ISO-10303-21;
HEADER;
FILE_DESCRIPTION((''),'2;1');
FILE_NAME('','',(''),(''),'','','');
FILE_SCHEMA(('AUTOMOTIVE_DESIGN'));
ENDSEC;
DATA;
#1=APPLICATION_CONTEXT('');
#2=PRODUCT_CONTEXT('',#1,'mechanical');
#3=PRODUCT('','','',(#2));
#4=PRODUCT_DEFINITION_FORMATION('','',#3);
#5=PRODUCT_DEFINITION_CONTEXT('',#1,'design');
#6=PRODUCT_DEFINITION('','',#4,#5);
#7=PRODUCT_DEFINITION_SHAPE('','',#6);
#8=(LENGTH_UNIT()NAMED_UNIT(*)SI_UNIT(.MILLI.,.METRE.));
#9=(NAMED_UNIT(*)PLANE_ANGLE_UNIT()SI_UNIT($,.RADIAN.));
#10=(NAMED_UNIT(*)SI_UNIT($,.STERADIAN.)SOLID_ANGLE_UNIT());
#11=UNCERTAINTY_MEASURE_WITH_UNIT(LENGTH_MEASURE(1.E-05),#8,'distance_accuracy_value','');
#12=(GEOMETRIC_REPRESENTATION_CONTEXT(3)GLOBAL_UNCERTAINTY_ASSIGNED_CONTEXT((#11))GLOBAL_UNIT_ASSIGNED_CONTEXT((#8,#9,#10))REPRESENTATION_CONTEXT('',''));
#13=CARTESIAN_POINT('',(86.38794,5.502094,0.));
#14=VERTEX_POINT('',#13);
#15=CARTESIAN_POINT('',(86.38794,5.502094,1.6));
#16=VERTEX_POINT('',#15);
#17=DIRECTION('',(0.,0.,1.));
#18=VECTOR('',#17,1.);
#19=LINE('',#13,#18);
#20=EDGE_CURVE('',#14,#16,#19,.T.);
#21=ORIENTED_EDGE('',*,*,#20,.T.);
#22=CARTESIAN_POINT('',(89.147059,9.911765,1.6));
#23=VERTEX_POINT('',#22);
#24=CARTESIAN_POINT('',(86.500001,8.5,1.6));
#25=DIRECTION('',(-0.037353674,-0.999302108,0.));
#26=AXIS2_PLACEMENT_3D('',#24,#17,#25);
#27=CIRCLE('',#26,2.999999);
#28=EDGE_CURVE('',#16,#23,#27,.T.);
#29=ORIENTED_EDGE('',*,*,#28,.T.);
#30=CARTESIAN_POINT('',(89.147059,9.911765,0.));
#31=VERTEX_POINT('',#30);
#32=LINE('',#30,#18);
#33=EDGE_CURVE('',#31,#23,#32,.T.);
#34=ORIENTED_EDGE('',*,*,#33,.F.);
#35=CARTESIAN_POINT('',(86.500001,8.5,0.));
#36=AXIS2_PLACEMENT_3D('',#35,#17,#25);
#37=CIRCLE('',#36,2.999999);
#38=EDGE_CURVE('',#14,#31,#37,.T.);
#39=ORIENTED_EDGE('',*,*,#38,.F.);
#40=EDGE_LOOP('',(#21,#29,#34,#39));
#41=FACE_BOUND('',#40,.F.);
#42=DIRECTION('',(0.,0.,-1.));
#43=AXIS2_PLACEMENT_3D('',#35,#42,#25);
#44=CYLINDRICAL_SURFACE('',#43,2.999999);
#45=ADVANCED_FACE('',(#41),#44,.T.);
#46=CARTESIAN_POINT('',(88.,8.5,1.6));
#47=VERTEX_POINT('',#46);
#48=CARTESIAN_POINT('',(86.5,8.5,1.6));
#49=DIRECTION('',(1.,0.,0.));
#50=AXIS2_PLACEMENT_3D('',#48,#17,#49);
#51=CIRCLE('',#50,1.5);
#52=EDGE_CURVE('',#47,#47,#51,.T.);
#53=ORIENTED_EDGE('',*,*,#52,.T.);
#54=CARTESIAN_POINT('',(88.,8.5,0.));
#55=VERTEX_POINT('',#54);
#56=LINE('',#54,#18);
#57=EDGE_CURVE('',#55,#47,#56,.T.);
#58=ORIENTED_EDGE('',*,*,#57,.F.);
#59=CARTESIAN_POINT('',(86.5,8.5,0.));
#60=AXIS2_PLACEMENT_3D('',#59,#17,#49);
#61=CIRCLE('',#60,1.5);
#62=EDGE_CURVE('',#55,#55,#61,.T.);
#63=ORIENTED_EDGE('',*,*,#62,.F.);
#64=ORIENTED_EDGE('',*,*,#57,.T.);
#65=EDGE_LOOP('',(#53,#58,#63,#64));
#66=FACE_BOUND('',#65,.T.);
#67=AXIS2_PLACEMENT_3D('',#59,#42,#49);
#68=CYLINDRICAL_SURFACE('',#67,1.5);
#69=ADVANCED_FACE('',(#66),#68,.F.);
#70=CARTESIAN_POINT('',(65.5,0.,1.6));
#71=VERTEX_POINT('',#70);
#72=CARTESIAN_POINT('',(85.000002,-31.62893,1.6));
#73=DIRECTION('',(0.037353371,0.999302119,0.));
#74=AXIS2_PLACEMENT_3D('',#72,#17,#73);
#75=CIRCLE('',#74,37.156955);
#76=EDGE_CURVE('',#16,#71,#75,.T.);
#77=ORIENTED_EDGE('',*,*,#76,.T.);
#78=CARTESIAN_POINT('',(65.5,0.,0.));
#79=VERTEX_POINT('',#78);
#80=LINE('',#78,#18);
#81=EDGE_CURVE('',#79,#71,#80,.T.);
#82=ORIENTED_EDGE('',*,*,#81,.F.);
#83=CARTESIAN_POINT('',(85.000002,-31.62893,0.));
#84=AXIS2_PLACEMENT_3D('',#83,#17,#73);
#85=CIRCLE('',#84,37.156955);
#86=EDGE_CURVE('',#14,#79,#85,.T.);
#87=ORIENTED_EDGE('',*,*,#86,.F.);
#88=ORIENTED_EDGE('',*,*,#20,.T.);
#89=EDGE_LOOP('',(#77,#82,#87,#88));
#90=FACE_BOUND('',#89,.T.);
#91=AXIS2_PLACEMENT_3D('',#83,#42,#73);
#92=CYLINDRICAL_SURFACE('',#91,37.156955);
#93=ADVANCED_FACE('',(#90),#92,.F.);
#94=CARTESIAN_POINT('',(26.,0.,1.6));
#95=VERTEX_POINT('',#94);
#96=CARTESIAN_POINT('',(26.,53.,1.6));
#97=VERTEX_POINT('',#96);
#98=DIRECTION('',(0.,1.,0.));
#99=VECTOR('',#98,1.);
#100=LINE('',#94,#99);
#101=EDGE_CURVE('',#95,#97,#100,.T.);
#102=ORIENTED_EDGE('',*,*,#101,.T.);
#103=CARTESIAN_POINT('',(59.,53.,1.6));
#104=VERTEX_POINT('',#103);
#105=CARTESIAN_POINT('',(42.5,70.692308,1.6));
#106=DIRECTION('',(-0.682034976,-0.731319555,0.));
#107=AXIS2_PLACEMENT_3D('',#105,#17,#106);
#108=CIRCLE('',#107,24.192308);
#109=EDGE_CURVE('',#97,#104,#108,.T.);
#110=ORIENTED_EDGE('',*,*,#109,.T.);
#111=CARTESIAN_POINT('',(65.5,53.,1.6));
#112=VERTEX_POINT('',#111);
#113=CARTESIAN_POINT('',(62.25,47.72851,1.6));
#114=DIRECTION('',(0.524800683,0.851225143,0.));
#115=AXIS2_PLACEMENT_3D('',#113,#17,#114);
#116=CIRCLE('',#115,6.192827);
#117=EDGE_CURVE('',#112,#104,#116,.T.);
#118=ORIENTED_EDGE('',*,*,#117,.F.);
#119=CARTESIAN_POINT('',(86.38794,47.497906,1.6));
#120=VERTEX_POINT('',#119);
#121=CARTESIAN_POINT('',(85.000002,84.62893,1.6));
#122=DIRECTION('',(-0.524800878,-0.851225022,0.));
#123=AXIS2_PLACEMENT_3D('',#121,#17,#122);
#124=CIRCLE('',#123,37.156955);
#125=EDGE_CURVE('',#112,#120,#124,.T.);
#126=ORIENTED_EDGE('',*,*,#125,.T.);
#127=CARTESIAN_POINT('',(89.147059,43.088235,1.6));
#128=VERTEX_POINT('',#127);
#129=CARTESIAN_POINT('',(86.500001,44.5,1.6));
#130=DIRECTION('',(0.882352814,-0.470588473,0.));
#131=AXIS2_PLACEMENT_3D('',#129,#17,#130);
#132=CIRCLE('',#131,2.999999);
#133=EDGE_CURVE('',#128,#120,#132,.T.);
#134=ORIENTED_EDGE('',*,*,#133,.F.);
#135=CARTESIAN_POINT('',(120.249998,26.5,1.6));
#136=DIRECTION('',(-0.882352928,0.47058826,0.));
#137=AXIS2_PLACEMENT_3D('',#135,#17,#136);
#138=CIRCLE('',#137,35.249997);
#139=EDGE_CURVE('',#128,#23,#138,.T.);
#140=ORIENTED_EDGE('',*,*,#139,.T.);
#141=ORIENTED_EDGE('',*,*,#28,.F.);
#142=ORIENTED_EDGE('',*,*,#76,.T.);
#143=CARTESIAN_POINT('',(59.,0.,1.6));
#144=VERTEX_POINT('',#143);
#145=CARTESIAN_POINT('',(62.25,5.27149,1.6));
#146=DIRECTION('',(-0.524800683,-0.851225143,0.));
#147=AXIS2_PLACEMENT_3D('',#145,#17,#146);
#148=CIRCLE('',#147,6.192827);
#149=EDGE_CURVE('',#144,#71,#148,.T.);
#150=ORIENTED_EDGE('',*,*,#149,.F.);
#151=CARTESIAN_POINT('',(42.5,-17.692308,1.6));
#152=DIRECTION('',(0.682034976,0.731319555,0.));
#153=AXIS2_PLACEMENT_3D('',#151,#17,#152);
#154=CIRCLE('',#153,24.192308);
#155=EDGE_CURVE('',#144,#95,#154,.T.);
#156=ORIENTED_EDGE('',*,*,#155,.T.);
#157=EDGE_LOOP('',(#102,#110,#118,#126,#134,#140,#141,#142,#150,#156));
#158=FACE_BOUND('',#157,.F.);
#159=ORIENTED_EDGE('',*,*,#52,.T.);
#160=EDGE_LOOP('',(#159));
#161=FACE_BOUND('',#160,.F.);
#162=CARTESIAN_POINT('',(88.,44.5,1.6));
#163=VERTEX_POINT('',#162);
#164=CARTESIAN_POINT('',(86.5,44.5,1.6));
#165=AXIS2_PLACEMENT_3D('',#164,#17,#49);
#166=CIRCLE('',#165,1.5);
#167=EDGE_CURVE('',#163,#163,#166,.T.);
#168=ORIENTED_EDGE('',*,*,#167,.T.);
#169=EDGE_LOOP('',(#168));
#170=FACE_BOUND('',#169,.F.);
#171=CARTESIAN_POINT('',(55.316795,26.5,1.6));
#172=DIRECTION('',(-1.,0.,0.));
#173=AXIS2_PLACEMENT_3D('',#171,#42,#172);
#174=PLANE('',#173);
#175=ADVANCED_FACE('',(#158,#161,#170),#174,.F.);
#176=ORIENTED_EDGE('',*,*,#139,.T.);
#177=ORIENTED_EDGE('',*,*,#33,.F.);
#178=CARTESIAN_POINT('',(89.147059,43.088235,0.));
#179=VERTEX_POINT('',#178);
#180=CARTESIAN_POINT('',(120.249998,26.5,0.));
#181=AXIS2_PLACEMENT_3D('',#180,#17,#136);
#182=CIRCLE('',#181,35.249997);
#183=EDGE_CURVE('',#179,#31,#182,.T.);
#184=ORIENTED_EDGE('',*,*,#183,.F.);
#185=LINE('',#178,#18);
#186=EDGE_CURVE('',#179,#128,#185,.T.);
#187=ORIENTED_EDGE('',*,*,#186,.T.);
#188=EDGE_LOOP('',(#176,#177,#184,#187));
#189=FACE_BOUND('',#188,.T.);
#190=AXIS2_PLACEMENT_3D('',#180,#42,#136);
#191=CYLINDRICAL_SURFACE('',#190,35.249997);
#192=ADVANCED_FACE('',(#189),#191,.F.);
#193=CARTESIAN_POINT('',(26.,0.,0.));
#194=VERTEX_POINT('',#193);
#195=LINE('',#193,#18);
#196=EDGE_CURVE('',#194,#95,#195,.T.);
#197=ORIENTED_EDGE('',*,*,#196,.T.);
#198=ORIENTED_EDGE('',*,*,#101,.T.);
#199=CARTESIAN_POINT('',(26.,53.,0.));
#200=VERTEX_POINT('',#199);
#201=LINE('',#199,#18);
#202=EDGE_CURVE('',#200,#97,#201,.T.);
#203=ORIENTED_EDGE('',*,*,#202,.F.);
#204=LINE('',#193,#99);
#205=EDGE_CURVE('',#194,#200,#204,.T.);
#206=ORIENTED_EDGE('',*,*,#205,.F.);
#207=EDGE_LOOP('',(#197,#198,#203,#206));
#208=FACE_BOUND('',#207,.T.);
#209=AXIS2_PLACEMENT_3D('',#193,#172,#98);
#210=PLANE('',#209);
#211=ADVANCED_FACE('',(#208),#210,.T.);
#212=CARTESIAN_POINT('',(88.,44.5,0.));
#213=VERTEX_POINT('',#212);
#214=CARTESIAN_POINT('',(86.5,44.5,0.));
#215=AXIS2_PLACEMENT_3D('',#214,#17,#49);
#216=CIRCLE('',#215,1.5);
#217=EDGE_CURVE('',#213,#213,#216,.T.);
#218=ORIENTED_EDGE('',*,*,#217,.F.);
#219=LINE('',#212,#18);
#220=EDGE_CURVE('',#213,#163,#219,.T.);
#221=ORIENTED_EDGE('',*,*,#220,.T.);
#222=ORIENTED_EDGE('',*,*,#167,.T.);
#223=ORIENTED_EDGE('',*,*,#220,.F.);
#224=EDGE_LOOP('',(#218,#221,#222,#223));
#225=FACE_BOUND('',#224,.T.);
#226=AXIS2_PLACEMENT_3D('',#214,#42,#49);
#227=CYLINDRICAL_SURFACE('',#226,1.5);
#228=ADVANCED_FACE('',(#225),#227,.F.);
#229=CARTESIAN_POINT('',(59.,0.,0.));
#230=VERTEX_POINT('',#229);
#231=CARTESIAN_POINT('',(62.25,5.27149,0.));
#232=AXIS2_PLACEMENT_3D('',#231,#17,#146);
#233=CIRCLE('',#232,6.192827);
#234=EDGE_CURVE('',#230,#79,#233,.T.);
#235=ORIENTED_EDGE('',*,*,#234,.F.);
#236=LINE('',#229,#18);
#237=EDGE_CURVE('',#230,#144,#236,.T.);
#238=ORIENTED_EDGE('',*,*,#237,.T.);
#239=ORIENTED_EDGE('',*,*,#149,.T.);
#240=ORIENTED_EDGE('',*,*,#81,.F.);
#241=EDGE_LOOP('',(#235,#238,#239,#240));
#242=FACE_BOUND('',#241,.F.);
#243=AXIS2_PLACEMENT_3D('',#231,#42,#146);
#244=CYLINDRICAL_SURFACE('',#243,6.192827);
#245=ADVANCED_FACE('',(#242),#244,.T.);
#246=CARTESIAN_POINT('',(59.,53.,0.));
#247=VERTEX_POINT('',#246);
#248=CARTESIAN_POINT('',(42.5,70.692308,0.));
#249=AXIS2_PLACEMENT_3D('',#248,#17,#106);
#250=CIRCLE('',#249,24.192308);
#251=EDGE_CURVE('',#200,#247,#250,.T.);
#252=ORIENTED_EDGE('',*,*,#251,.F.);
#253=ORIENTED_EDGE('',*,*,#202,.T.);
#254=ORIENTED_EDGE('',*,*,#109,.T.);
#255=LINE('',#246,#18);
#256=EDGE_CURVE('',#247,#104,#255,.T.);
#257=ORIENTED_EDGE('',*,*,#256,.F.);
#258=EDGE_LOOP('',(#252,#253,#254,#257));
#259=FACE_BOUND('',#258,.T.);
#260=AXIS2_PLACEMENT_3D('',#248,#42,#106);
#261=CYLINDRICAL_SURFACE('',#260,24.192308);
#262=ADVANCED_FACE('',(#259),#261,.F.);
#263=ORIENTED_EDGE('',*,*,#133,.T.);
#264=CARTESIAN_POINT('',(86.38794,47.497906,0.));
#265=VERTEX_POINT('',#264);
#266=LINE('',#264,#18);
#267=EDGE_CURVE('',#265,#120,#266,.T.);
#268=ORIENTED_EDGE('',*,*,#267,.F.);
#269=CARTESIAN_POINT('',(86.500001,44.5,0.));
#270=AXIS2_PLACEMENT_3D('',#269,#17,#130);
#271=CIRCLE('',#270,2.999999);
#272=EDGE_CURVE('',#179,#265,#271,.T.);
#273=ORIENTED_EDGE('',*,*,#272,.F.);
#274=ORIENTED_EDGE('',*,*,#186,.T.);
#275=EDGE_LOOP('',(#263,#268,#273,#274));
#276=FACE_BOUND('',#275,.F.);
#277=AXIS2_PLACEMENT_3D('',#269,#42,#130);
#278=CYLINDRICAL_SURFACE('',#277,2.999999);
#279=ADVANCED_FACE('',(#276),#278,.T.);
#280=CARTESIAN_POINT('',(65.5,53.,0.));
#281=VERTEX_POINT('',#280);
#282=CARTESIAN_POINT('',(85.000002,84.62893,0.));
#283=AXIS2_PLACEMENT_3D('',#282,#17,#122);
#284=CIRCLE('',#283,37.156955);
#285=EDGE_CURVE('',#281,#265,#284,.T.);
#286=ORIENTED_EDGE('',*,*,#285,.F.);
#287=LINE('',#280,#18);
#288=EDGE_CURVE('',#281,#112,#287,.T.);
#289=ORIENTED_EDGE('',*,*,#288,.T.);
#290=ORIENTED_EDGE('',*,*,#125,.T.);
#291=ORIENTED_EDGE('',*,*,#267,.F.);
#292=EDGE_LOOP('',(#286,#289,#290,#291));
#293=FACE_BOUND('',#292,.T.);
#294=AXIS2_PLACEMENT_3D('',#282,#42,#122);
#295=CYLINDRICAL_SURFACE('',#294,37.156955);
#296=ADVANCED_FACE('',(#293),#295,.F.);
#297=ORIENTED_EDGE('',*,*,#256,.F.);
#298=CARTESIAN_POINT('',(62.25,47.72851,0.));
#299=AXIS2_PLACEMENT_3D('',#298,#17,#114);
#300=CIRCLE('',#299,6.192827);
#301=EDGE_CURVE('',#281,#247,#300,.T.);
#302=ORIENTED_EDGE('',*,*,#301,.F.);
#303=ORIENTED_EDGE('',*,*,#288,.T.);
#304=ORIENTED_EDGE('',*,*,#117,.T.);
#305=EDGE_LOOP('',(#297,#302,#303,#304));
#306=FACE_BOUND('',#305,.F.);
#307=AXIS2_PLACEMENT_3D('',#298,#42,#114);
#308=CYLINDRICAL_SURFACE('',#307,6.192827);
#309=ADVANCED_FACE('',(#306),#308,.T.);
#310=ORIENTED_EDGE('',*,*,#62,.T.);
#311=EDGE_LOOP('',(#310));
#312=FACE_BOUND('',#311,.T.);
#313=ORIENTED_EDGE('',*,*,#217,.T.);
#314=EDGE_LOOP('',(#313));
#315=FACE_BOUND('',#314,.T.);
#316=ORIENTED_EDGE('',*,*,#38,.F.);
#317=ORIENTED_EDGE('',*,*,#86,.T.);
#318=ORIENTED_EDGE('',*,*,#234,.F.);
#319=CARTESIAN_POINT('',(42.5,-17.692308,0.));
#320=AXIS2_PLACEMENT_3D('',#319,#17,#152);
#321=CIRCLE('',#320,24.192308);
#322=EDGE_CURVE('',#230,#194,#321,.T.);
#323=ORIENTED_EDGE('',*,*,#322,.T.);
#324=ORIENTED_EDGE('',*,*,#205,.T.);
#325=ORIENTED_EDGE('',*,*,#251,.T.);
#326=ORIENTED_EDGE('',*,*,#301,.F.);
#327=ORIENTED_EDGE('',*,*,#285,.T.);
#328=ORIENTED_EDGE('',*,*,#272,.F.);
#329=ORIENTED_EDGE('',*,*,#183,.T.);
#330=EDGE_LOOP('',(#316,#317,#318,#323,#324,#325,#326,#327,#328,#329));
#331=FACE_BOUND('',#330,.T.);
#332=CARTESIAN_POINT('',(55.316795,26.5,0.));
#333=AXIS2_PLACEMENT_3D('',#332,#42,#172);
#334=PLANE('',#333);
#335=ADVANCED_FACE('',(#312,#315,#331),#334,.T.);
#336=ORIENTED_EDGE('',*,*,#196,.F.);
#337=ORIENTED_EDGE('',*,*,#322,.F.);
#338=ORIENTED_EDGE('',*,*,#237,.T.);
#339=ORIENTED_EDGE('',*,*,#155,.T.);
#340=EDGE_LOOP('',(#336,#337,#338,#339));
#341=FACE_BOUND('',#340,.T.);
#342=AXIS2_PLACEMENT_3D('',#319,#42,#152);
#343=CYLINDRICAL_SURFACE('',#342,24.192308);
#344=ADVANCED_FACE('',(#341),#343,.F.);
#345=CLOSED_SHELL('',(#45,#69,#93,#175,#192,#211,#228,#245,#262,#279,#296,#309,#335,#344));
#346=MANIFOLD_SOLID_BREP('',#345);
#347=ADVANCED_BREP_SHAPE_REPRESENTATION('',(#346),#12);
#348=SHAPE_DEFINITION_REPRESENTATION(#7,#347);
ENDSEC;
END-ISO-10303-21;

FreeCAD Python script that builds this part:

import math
import FreeCAD as App
import Part
import Sketcher
Q = App.Units.Quantity

doc = App.newDocument("Part")
body = doc.addObject("PartDesign::Body", "Body")

sketch1 = doc.addObject("Sketcher::SketchObject", "Sketch")
body.addObject(sketch1)
sketch1.AttachmentSupport = (doc.XY_Plane, [""])
sketch1.MapMode = "FlatFace"
sketch1.addGeometry([
    Part.ArcOfCircle(Part.Circle(App.Vector(42.5, -17.7, 0), App.Vector(0, 0, 1), 24.2), math.radians(47), math.radians(133)),
    Part.ArcOfCircle(Part.Circle(App.Vector(62.2, 5.3, 0), App.Vector(0, 0, 1), 6.2), math.radians(-122), math.radians(-58)),
    Part.ArcOfCircle(Part.Circle(App.Vector(85, -31.6, 0), App.Vector(0, 0, 1), 37.2), math.radians(88), math.radians(122)),
    Part.ArcOfCircle(Part.Circle(App.Vector(86.5, 8.5, 0), App.Vector(0, 0, 1), 3), math.radians(-92), math.radians(28)),
    Part.ArcOfCircle(Part.Circle(App.Vector(120.2, 26.5, 0), App.Vector(0, 0, 1), 35.2), math.radians(152), math.radians(208)),
    Part.ArcOfCircle(Part.Circle(App.Vector(86.5, 44.5, 0), App.Vector(0, 0, 1), 3), math.radians(-28), math.radians(92)),
    Part.ArcOfCircle(Part.Circle(App.Vector(85, 84.6, 0), App.Vector(0, 0, 1), 37.2), math.radians(-122), math.radians(-88)),
    Part.ArcOfCircle(Part.Circle(App.Vector(62.2, 47.7, 0), App.Vector(0, 0, 1), 6.2), math.radians(58), math.radians(122)),
    Part.ArcOfCircle(Part.Circle(App.Vector(42.5, 70.7, 0), App.Vector(0, 0, 1), 24.2), math.radians(-133), math.radians(-47)),
    Part.LineSegment(App.Vector(26, 53, 0), App.Vector(26, 0, 0)),
    Part.Circle(App.Vector(86.5, 8.5, 0), App.Vector(0, 0, 1), 1.5),
    Part.Circle(App.Vector(86.5, 44.5, 0), App.Vector(0, 0, 1), 1.5),
], False)
sketch1.addConstraint([
    Sketcher.Constraint("Coincident", 0, 1, 1, 1),
    Sketcher.Constraint("Tangent", 1, 2, 2, 2),
    Sketcher.Constraint("Tangent", 2, 1, 3, 1),
    Sketcher.Constraint("Tangent", 3, 2, 4, 2),
    Sketcher.Constraint("Tangent", 4, 1, 5, 1),
    Sketcher.Constraint("Tangent", 5, 2, 6, 2),
    Sketcher.Constraint("Tangent", 6, 1, 7, 1),
    Sketcher.Constraint("Coincident", 7, 2, 8, 2),
    Sketcher.Constraint("Coincident", 8, 1, 9, 1),
    Sketcher.Constraint("Coincident", 9, 2, 0, 2),
    Sketcher.Constraint("Vertical", 9),
    Sketcher.Constraint("Coincident", 10, 3, 3, 3),
    Sketcher.Constraint("Coincident", 11, 3, 5, 3),
    Sketcher.Constraint("Equal", 3, 5),
    Sketcher.Constraint("Equal", 2, 6),
    Sketcher.Constraint("Equal", 1, 7),
    Sketcher.Constraint("Equal", 0, 8),
    Sketcher.Constraint("Equal", 10, 11),
    Sketcher.Constraint("PointOnObject", 0, 1, -1),
    Sketcher.Constraint("PointOnObject", 1, 2, -1),
    Sketcher.Constraint("PointOnObject", 9, 2, -1),
    Sketcher.Constraint("Horizontal", 6, 1, 7, 2),
    Sketcher.Constraint("Horizontal", 7, 2, 8, 1),
    Sketcher.Constraint("Vertical", 3, 3, 5, 3),
    Sketcher.Constraint("Vertical", 2, 3, 6, 3),
    Sketcher.Constraint("Vertical", 1, 3, 7, 3),
    Sketcher.Constraint("Diameter", 10, Q("3 mm")),
    Sketcher.Constraint("Radius", 3, Q("2.999999 mm")),
    Sketcher.Constraint("DistanceY", 9, 2, 9, 1, Q("53 mm")),
    Sketcher.Constraint("DistanceX", -1, 1, 0, 1, Q("59 mm")),
    Sketcher.Constraint("DistanceX", -1, 1, 8, 1, Q("26 mm")),
    Sketcher.Constraint("DistanceX", 0, 3, 3, 3, Q("44.000001 mm")),
    Sketcher.Constraint("DistanceY", 3, 3, 4, 3, Q("18 mm")),
    Sketcher.Constraint("DistanceX", 1, 2, 10, 3, Q("21 mm")),
    Sketcher.Constraint("DistanceX", 2, 3, 3, 3, Q("1.499999 mm")),
    Sketcher.Constraint("Radius", 0, Q("24.192308 mm")),
    Sketcher.Constraint("Radius", 4, Q("35.249997 mm")),
])
pad1 = doc.addObject("PartDesign::Pad", "Pad")
body.addObject(pad1)
pad1.Profile = sketch1
pad1.Length = 1.6

doc.recompute()
